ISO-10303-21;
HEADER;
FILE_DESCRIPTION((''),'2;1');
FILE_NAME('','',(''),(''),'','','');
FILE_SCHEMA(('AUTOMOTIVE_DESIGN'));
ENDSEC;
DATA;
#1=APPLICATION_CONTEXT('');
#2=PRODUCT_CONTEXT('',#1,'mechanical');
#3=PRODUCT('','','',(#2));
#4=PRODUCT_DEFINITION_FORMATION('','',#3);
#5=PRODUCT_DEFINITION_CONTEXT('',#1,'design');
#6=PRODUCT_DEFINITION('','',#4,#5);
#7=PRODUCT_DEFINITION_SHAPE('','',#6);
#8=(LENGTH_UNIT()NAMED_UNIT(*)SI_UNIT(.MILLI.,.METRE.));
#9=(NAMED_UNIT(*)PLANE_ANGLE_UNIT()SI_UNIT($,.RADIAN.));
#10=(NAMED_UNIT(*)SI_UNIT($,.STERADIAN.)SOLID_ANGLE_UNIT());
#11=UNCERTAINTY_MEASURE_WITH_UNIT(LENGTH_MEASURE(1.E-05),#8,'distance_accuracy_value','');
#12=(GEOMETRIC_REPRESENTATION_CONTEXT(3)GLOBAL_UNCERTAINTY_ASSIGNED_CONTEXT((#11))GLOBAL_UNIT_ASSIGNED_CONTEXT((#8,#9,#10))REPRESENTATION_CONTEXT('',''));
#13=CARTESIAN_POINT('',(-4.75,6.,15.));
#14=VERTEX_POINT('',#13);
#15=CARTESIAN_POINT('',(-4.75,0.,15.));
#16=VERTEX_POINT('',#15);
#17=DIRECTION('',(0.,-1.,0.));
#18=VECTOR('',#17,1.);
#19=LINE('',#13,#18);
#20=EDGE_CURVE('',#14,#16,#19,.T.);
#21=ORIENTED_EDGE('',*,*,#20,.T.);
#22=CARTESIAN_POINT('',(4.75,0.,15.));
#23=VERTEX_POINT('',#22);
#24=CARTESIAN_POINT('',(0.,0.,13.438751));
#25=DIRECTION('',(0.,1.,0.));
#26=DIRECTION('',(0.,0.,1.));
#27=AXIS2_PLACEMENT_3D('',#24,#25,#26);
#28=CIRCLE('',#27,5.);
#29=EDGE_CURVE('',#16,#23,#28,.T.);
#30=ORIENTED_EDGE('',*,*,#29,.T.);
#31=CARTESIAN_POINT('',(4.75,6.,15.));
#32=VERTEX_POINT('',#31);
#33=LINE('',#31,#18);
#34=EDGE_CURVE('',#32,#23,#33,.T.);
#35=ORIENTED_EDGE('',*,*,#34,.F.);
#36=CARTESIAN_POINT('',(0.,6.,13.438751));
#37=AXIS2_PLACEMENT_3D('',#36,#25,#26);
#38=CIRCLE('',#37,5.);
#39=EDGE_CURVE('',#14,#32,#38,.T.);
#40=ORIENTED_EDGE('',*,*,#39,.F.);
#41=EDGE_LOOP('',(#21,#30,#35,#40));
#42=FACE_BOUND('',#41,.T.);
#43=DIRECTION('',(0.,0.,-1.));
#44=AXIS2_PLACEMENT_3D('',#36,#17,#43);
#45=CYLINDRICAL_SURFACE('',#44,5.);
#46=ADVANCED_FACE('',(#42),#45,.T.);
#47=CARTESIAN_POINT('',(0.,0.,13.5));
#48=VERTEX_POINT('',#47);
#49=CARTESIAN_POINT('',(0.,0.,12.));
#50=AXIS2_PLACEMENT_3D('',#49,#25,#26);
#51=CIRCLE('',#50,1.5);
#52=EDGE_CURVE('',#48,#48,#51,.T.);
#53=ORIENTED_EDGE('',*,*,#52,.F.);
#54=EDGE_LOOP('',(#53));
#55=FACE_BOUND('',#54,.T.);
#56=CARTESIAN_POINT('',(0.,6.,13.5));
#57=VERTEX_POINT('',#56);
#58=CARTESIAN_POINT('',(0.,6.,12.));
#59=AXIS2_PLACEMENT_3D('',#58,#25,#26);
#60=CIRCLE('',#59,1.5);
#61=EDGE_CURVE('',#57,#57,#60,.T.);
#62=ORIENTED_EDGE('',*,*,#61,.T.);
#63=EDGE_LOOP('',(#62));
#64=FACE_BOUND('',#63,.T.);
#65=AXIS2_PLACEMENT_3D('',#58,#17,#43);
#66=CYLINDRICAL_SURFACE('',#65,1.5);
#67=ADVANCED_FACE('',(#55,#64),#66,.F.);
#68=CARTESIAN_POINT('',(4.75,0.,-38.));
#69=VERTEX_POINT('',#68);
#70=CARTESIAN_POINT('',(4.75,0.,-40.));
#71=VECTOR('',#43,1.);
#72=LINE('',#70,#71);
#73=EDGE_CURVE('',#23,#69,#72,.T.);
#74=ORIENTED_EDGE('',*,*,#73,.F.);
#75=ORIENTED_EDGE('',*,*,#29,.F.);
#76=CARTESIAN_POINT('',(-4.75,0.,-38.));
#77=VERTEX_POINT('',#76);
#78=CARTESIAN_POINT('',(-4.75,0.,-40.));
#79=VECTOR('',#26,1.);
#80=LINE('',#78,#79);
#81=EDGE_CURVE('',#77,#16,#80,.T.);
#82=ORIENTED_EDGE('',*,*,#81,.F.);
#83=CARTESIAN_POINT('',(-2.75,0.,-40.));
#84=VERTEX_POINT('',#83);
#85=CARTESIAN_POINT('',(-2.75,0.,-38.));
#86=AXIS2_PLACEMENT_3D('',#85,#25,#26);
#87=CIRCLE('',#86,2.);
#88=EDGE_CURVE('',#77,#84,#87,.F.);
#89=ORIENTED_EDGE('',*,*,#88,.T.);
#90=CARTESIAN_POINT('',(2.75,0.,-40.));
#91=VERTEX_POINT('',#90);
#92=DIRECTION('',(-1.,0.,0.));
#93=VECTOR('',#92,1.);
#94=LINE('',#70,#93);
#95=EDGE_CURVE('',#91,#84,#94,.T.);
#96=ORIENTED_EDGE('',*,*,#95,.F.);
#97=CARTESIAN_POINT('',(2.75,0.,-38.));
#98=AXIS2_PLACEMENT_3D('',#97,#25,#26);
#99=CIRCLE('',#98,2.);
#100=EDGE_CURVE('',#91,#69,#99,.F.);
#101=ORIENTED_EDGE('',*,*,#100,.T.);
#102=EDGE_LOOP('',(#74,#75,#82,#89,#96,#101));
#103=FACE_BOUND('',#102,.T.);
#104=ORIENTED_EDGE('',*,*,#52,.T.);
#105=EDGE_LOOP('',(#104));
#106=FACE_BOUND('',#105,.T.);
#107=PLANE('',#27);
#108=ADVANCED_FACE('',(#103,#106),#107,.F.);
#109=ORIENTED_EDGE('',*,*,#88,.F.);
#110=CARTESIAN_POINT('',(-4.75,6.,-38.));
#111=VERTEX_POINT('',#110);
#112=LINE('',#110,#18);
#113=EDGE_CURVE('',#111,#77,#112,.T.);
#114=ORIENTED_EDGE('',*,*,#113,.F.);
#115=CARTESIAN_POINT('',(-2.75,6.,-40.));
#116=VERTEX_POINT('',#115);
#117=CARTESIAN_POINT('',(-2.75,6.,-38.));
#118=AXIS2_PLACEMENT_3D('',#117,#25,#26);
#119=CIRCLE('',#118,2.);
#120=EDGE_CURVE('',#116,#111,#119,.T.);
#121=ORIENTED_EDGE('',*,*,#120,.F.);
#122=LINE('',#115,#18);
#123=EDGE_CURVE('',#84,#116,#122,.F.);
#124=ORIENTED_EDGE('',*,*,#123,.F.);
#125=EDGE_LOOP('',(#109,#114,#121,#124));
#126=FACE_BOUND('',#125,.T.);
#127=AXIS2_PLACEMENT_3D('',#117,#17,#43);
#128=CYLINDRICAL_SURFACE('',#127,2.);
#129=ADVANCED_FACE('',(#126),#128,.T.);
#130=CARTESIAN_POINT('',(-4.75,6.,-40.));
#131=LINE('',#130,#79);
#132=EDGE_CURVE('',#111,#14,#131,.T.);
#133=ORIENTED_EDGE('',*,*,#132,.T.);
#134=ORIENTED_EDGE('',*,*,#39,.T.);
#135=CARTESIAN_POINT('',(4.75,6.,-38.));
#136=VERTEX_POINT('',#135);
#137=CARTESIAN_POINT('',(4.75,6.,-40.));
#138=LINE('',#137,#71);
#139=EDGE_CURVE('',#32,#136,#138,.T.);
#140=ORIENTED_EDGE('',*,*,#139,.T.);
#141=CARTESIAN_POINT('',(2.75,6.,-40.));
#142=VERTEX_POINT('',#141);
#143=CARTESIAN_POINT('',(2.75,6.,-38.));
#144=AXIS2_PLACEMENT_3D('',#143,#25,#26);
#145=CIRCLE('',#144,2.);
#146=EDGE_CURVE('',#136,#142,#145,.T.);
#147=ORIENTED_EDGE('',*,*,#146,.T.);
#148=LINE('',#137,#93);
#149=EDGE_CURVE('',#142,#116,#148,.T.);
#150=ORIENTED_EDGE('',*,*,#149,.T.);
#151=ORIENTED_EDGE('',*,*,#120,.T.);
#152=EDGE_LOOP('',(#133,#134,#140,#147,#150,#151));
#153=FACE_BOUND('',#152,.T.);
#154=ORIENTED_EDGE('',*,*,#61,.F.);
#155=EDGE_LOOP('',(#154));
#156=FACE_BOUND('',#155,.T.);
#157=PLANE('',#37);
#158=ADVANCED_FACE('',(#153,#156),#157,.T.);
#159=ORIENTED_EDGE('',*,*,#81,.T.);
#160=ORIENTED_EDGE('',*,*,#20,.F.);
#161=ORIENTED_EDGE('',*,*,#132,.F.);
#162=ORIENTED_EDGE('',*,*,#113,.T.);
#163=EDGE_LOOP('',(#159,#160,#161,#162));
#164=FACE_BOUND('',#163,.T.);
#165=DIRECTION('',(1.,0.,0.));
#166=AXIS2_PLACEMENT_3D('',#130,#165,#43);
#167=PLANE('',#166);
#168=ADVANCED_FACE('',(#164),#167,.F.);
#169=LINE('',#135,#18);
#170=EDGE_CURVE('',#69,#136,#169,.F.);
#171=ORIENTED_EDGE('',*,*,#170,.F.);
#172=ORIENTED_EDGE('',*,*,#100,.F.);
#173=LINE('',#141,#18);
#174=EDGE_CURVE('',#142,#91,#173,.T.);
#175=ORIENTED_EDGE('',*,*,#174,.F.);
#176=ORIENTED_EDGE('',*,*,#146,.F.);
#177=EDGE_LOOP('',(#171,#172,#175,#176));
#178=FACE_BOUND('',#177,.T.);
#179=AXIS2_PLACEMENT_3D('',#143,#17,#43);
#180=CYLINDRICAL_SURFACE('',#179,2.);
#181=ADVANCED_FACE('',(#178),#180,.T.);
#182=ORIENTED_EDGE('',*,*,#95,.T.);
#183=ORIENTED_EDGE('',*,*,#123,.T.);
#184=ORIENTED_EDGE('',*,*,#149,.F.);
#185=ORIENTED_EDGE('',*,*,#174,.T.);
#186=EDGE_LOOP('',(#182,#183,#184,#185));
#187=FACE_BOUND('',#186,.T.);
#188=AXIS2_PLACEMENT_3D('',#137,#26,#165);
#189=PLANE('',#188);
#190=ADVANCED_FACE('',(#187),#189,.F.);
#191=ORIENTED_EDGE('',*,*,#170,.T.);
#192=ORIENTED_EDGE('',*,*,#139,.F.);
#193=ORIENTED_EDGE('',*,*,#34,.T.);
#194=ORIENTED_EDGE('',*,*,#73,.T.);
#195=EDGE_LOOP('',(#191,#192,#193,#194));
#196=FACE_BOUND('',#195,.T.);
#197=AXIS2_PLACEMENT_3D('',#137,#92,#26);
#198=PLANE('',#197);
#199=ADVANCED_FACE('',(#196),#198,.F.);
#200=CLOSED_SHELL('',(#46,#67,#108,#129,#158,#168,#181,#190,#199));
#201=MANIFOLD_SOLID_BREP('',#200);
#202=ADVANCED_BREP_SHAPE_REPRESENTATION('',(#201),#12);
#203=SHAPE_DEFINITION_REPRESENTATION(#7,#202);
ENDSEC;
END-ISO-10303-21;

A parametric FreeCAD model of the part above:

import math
import FreeCAD as App
import Part
import Sketcher

V = App.Vector


def edges_at(feature, points):
    """Names of the edges that pass closest to the given points."""
    edges = feature.Shape.Edges
    near = lambda p: min(range(len(edges)), key=lambda i: edges[i].distToShape(Part.Vertex(*p))[0])
    return sorted({f"Edge{near(p) + 1}" for p in points})

doc = App.newDocument("Part")
body = doc.addObject("PartDesign::Body", "Body")

sketch1 = body.newObject("Sketcher::SketchObject", "Sketch")
sketch1.AttachmentSupport = (doc.getObject("XZ_Plane"), [""])
sketch1.MapMode = "FlatFace"
sketch1.addGeometry([
    Part.LineSegment(V(4.75, -40, 0), V(-4.75, -40, 0)),
    Part.LineSegment(V(-4.75, -40, 0), V(-4.75, 15, 0)),
    Part.ArcOfCircle(Part.Circle(V(0, 13.43875, 0), V(0, 0, 1), 5), math.radians(18.194872), math.radians(161.805128)),
    Part.LineSegment(V(4.75, 15, 0), V(4.75, -40, 0)),
    Part.Circle(V(0, 12, 0), V(0, 0, 1), 1.5),
], False)
sketch1.addConstraint([
    Sketcher.Constraint("Coincident", 0, 2, 1, 1),
    Sketcher.Constraint("Coincident", 1, 2, 2, 2),
    Sketcher.Constraint("Coincident", 2, 1, 3, 1),
    Sketcher.Constraint("Coincident", 3, 2, 0, 1),
    Sketcher.Constraint("Horizontal", 0),
    Sketcher.Constraint("Vertical", 1),
    Sketcher.Constraint("Vertical", 3),
    Sketcher.Constraint("Symmetric", 1, 2, 2, 1, -2),
    Sketcher.Constraint("PointOnObject", 4, 3, -2),
    Sketcher.Constraint("Diameter", 4, 3.0),
    Sketcher.Constraint("Radius", 2, 5.0),
    Sketcher.Constraint("DistanceY", 1, 1, 1, 2, 55.0),
    Sketcher.Constraint("DistanceX", 0, 2, 0, 1, 9.5),
    Sketcher.Constraint("DistanceY", -1, 1, 4, 3, 12.0),
    Sketcher.Constraint("DistanceY", 0, 2, -1, 1, 40.0),
])
pad1 = body.newObject("PartDesign::Pad", "Pad")
pad1.Profile = sketch1
pad1.Length = 6
pad1.Reversed = True
doc.recompute()

fillet = body.newObject("PartDesign::Fillet", "Fillet")
fillet.Base = (pad1, edges_at(pad1, [(-4.75, 3, -40), (4.75, 3, -40)]))
fillet.Radius = 2

doc.recompute()
